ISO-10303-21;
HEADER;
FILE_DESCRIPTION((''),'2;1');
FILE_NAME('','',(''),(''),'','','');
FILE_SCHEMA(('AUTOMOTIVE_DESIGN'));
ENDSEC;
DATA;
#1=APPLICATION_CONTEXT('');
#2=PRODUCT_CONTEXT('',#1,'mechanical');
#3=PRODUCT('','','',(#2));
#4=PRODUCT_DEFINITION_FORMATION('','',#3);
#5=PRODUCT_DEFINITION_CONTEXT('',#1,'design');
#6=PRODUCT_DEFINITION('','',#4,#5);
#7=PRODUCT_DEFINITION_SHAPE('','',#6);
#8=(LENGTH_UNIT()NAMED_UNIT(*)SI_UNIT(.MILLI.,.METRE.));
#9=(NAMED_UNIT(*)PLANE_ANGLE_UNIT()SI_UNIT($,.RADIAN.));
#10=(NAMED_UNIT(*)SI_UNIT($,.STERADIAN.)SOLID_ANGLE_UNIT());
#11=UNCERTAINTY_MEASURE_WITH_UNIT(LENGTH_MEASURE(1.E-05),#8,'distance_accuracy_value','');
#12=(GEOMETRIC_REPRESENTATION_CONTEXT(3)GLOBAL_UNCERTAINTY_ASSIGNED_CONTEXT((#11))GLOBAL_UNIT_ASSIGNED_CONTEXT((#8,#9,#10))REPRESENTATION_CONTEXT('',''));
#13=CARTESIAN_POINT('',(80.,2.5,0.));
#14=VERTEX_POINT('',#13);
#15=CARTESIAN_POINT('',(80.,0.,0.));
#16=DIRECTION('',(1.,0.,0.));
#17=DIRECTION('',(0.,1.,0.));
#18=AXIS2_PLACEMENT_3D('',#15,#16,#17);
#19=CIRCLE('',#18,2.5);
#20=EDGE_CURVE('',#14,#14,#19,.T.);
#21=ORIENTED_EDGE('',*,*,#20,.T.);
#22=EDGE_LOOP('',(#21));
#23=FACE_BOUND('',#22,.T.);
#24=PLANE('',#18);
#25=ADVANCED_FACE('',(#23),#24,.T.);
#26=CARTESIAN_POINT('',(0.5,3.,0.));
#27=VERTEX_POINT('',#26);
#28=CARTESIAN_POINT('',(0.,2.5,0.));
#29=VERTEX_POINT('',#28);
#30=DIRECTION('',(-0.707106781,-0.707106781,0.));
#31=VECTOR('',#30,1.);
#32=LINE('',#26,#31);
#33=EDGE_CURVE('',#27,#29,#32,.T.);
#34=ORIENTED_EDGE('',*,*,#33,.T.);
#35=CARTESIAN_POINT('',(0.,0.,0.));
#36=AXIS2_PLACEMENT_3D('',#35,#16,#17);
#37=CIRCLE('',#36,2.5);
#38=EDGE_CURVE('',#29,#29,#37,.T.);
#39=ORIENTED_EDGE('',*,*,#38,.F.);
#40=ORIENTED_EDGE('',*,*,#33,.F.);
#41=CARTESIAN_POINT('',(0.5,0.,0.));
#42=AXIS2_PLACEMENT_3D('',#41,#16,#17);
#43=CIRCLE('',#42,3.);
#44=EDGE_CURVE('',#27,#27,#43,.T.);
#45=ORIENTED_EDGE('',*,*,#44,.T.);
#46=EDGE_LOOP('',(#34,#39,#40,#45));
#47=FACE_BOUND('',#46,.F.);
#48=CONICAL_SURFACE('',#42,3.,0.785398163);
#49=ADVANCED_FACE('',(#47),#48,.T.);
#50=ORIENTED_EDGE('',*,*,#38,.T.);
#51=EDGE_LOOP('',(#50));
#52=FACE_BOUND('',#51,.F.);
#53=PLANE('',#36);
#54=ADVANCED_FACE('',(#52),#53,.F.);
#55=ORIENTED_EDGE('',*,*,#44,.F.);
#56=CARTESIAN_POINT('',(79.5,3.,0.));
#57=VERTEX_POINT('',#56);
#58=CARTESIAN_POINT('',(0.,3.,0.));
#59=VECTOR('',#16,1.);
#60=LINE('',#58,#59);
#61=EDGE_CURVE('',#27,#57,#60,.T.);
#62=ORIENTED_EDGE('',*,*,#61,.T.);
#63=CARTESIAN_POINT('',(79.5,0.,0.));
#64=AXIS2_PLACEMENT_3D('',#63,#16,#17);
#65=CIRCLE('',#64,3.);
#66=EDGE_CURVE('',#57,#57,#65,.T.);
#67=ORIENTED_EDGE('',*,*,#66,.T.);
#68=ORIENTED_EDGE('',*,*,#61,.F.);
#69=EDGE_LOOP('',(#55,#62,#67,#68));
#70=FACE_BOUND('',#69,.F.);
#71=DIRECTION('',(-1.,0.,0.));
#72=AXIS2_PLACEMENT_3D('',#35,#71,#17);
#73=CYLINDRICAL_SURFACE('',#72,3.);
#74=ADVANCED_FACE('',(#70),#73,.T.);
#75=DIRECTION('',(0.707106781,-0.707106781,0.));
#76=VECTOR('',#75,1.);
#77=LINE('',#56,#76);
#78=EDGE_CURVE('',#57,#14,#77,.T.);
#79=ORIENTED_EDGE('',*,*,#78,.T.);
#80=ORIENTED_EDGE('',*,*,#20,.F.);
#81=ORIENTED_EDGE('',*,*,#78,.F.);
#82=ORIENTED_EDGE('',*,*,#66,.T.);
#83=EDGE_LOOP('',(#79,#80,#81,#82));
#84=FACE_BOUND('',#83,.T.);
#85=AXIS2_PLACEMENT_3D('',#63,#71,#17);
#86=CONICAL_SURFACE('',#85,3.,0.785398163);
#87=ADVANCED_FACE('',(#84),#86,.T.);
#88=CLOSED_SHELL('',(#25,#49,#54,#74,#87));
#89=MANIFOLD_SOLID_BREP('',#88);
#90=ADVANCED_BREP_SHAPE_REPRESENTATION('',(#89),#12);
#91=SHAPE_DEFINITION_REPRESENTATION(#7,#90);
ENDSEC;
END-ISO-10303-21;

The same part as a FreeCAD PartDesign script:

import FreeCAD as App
import Part
import Sketcher
Q = App.Units.Quantity


def edges_at(feature, points):
    """Names of the edges that pass closest to the given points."""
    edges = feature.Shape.Edges
    near = lambda p: min(range(len(edges)), key=lambda i: edges[i].distToShape(Part.Vertex(*p))[0])
    return sorted({f"Edge{near(p) + 1}" for p in points})

doc = App.newDocument("Part")
body = doc.addObject("PartDesign::Body", "Body")

# Sketch on YZ plane
sketch1 = body.newObject("Sketcher::SketchObject", "Sketch")
sketch1.AttachmentSupport = (doc.getObject("YZ_Plane"), [""])
sketch1.MapMode = "FlatFace"
sketch1.addGeometry(Part.Circle(App.Vector(0, 0, 0), App.Vector(0, 0, 1), 3), False)
sketch1.addConstraint(Sketcher.Constraint("Coincident", 0, 3, -1, 1))
sketch1.addConstraint(Sketcher.Constraint("Diameter", 0, Q("6 mm")))
pad1 = body.newObject("PartDesign::Pad", "Pad")
pad1.Profile = sketch1
pad1.Length = 80
doc.recompute()

chamfer = body.newObject("PartDesign::Chamfer", "Chamfer")
chamfer.Base = (pad1, edges_at(pad1, [(80, -3, 0), (0, -3, 0)]))
chamfer.Size = 0.5

doc.recompute()
